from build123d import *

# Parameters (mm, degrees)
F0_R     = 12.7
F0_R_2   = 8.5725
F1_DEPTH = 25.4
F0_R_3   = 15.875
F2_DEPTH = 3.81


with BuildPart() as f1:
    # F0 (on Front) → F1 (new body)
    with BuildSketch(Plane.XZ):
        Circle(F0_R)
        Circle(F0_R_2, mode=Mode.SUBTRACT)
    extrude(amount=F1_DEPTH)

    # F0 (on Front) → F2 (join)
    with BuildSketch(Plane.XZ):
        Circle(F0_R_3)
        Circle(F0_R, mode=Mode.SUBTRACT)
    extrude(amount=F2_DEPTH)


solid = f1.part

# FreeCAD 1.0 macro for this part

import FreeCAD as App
import Part
import Sketcher
from FreeCAD import Vector
Q = App.Units.Quantity

doc = App.newDocument("Part")
body = doc.addObject("PartDesign::Body", "Body")

sketch1 = body.newObject("Sketcher::SketchObject", "Sketch")
sketch1.AttachmentSupport = (doc.getObject("XZ_Plane"), [""])
sketch1.MapMode = "FlatFace"
sketch1.addGeometry([
    Part.Circle(Vector(0, 0, 0), Vector(0, 0, 1), 13),
    Part.Circle(Vector(0, 0, 0), Vector(0, 0, 1), 9),
], False)
sketch1.addConstraint([
    Sketcher.Constraint("Coincident", 0, 3, -1, 1),
    Sketcher.Constraint("Coincident", 1, 3, -1, 1),
    Sketcher.Constraint("Diameter", 0, Q("1 in")),
    Sketcher.Constraint("Diameter", 1, Q("0.675 in")),
])
pad1 = body.newObject("PartDesign::Pad", "Pad")
pad1.Profile = sketch1
pad1.Length = Q("1 in")

sketch2 = body.newObject("Sketcher::SketchObject", "Sketch001")
sketch2.AttachmentSupport = (doc.getObject("XZ_Plane"), [""])
sketch2.MapMode = "FlatFace"
sketch2.addGeometry([
    Part.Circle(Vector(0, 0, 0), Vector(0, 0, 1), 16),
    Part.Circle(Vector(0, 0, 0), Vector(0, 0, 1), 13),
], False)
sketch2.addConstraint([
    Sketcher.Constraint("Coincident", 0, 3, -1, 1),
    Sketcher.Constraint("Coincident", 1, 3, -1, 1),
    Sketcher.Constraint("Diameter", 1, Q("1 in")),
    Sketcher.Constraint("Diameter", 0, Q("1.25 in")),
])
pad2 = body.newObject("PartDesign::Pad", "Pad001")
pad2.Profile = sketch2
pad2.Length = Q("0.15 in")

doc.recompute()
